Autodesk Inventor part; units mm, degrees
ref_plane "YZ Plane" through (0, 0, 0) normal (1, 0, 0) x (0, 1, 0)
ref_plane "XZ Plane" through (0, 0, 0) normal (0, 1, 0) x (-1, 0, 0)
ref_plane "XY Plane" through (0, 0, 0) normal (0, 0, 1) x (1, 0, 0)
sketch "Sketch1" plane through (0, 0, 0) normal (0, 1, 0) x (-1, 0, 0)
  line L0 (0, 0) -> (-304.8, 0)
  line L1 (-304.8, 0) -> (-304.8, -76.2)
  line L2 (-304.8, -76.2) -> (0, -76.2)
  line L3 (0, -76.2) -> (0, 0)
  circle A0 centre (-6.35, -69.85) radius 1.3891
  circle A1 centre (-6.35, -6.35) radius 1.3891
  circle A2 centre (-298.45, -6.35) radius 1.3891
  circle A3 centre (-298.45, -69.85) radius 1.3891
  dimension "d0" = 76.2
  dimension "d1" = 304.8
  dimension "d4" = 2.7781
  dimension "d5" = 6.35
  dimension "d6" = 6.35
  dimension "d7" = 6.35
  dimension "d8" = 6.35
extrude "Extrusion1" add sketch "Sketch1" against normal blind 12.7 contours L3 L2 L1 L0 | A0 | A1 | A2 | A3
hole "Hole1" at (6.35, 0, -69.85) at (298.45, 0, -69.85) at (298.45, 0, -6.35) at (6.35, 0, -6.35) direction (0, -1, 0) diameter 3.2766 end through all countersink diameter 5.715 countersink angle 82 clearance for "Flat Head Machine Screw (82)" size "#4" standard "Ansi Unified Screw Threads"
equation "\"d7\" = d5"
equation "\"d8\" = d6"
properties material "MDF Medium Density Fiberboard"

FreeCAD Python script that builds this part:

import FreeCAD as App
import Part
import Sketcher

V = App.Vector
Q = App.Units.Quantity


def add_polygon(sketch, points):
    """Adds a closed chain of lines whose ends are joined by coincident constraints."""
    first, n = sketch.GeometryCount, len(points)
    for a, b in zip(points, points[1:] + points[:1]):
        sketch.addGeometry(Part.LineSegment(App.Vector(*a, 0), App.Vector(*b, 0)), False)
    for i in range(n):
        sketch.addConstraint(Sketcher.Constraint("Coincident", first + i, 2, first + (i + 1) % n, 1))

doc = App.newDocument("Part")
body = doc.addObject("PartDesign::Body", "Body")

# Sketch on XZ plane
sketch1 = body.newObject("Sketcher::SketchObject", "Sketch")
sketch1.AttachmentSupport = (doc.getObject("XZ_Plane"), [""])
sketch1.MapMode = "FlatFace"
add_polygon(sketch1, [(0, -76), (0, 0), (305, 0), (305, -76)])  # lines 0-3
sketch1.addConstraint(Sketcher.Constraint("Vertical", 0))
sketch1.addConstraint(Sketcher.Constraint("Horizontal", 1))
sketch1.addConstraint(Sketcher.Constraint("Vertical", 2))
sketch1.addConstraint(Sketcher.Constraint("Horizontal", 3))
sketch1.addConstraint(Sketcher.Constraint("Coincident", 0, 2, -1, 1))
sketch1.addConstraint(Sketcher.Constraint("DistanceX", 1, 1, 1, 2, Q("12 in")))
sketch1.addConstraint(Sketcher.Constraint("DistanceY", 0, 1, 0, 2, Q("3 in")))
pad1 = body.newObject("PartDesign::Pad", "Pad")
pad1.Profile = sketch1
pad1.Length = Q("0.5 in")

# Sketch on XZ plane
sketch2 = body.newObject("Sketcher::SketchObject", "Sketch001")
sketch2.AttachmentSupport = (doc.getObject("XZ_Plane"), [""])
sketch2.MapMode = "FlatFace"
sketch2.addGeometry(Part.Circle(V(6.3, -69.8, 0), V(0, 0, 1), 1.6), False)
sketch2.addGeometry(Part.Circle(V(298.4, -69.8, 0), V(0, 0, 1), 1.6), False)
sketch2.addGeometry(Part.Circle(V(298.4, -6.3, 0), V(0, 0, 1), 1.6), False)
sketch2.addGeometry(Part.Circle(V(6.3, -6.3, 0), V(0, 0, 1), 1.6), False)
sketch2.addConstraint(Sketcher.Constraint("Equal", 0, 1))
sketch2.addConstraint(Sketcher.Constraint("Equal", 1, 2))
sketch2.addConstraint(Sketcher.Constraint("Equal", 2, 3))
sketch2.addConstraint(Sketcher.Constraint("Horizontal", 0, 3, 1, 3))
sketch2.addConstraint(Sketcher.Constraint("Horizontal", 2, 3, 3, 3))
sketch2.addConstraint(Sketcher.Constraint("Vertical", 1, 3, 2, 3))
sketch2.addConstraint(Sketcher.Constraint("Vertical", 0, 3, 3, 3))
sketch2.addConstraint(Sketcher.Constraint("Diameter", 0, Q("0.129 in")))
sketch2.addConstraint(Sketcher.Constraint("DistanceX", 0, 3, 1, 3, Q("11.5 in")))
sketch2.addConstraint(Sketcher.Constraint("DistanceY", 1, 3, 2, 3, Q("2.5 in")))
sketch2.addConstraint(Sketcher.Constraint("DistanceX", -1, 1, 0, 3, Q("0.25 in")))
sketch2.addConstraint(Sketcher.Constraint("DistanceY", 0, 3, -1, 1, Q("2.75 in")))
doc.recompute()
hole = body.newObject("PartDesign::Hole", "Hole")
hole.Profile = sketch2
hole.ThreadType = "None"
hole.Diameter = Q("0.129 in")
hole.DepthType = "ThroughAll"
hole.HoleCutType = "Countersink"
hole.HoleCutDiameter = Q("0.225 in")
hole.HoleCutCountersinkAngle = 82
hole.Reversed = True

doc.recompute()
